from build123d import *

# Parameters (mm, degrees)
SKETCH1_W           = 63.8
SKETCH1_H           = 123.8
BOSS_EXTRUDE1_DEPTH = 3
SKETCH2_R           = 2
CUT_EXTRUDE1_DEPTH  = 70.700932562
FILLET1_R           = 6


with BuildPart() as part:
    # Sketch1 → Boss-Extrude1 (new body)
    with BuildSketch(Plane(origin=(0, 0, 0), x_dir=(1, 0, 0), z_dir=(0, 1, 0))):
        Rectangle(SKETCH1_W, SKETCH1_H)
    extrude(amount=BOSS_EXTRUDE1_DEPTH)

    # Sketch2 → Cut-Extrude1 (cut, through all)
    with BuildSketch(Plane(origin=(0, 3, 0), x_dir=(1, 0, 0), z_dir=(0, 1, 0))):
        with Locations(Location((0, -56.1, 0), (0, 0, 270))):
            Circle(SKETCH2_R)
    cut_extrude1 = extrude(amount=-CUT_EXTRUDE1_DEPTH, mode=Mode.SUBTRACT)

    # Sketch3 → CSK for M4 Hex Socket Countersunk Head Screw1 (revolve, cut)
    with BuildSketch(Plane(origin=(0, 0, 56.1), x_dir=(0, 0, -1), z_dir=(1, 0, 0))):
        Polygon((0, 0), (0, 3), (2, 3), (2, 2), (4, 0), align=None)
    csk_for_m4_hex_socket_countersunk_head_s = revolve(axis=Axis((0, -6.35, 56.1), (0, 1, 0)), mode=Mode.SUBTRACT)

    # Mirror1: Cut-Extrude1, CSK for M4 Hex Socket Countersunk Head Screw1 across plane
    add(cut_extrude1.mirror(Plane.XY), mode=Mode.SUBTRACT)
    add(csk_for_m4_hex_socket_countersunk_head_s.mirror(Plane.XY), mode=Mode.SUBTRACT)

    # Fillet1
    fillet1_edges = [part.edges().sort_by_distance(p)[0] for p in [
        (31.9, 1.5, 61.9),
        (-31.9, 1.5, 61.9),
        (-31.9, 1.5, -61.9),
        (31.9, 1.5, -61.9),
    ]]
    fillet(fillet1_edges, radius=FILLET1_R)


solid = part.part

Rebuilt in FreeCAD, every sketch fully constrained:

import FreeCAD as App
import Part
import Sketcher
from FreeCAD import Vector
Q = App.Units.Quantity


def edges_at(feature, points):
    """Names of the edges that pass closest to the given points."""
    edges = feature.Shape.Edges
    near = lambda p: min(range(len(edges)), key=lambda i: edges[i].distToShape(Part.Vertex(*p))[0])
    return sorted({f"Edge{near(p) + 1}" for p in points})

doc = App.newDocument("Part")
body = doc.addObject("PartDesign::Body", "Body")

# Sketch on XZ plane
sketch1 = body.newObject("Sketcher::SketchObject", "Sketch")
sketch1.AttachmentSupport = (doc.getObject("XZ_Plane"), [""])
sketch1.MapMode = "FlatFace"
sketch1.addGeometry(Part.LineSegment(Vector(-32, -62, 0), Vector(-32, 62, 0)), False)
sketch1.addGeometry(Part.LineSegment(Vector(-32, 62, 0), Vector(32, 62, 0)), False)
sketch1.addGeometry(Part.LineSegment(Vector(32, 62, 0), Vector(32, -62, 0)), False)
sketch1.addGeometry(Part.LineSegment(Vector(32, -62, 0), Vector(-32, -62, 0)), False)
sketch1.addConstraint(Sketcher.Constraint("Coincident", 0, 2, 1, 1))
sketch1.addConstraint(Sketcher.Constraint("Coincident", 1, 2, 2, 1))
sketch1.addConstraint(Sketcher.Constraint("Coincident", 2, 2, 3, 1))
sketch1.addConstraint(Sketcher.Constraint("Coincident", 3, 2, 0, 1))
sketch1.addConstraint(Sketcher.Constraint("Vertical", 0))
sketch1.addConstraint(Sketcher.Constraint("Horizontal", 1))
sketch1.addConstraint(Sketcher.Constraint("Vertical", 2))
sketch1.addConstraint(Sketcher.Constraint("Horizontal", 3))
sketch1.addConstraint(Sketcher.Constraint("Symmetric", 0, 2, 2, 2, -1, 1))
sketch1.addConstraint(Sketcher.Constraint("DistanceX", 1, 1, 1, 2, Q("63.8 mm")))
sketch1.addConstraint(Sketcher.Constraint("DistanceY", 0, 1, 0, 2, Q("123.8 mm")))
pad1 = body.newObject("PartDesign::Pad", "Pad")
pad1.Profile = sketch1
pad1.Length = 3
pad1.Reversed = True

# Sketch on XZ plane
sketch2 = body.newObject("Sketcher::SketchObject", "Sketch001")
sketch2.AttachmentSupport = (doc.getObject("XZ_Plane"), [""])
sketch2.MapMode = "FlatFace"
sketch2.AttachmentOffset = App.Placement(Vector(0, 0, -3), App.Rotation())
sketch2.addGeometry(Part.Circle(Vector(0, 56.1, 0), Vector(0, 0, 1), 2), False)
sketch2.addConstraint(Sketcher.Constraint("PointOnObject", 0, 3, -2))
sketch2.addConstraint(Sketcher.Constraint("Diameter", 0, Q("4 mm")))
sketch2.addConstraint(Sketcher.Constraint("DistanceY", -1, 1, 0, 3, Q("56.1 mm")))
pocket1 = body.newObject("PartDesign::Pocket", "Pocket")
pocket1.Profile = sketch2
pocket1.Type = "ThroughAll"
pocket1.Reversed = True

# Sketch on YZ plane
sketch3 = body.newObject("Sketcher::SketchObject", "Sketch002")
sketch3.AttachmentSupport = (doc.getObject("YZ_Plane"), [""])
sketch3.MapMode = "FlatFace"
sketch3.addGeometry(Part.LineSegment(Vector(3, 56.1, 0), Vector(0, 56.1, 0)), False)
sketch3.addGeometry(Part.LineSegment(Vector(0, 56.1, 0), Vector(0, 52.1, 0)), False)
sketch3.addGeometry(Part.LineSegment(Vector(0, 52.1, 0), Vector(2, 54.1, 0)), False)
sketch3.addGeometry(Part.LineSegment(Vector(2, 54.1, 0), Vector(3, 54.1, 0)), False)
sketch3.addGeometry(Part.LineSegment(Vector(3, 54.1, 0), Vector(3, 56.1, 0)), False)
sketch3.addGeometry(Part.LineSegment(Vector(0, 56.1, 0), Vector(3, 56.1, 0)), True)  # axis
sketch3.addConstraint(Sketcher.Constraint("Coincident", 0, 2, 1, 1))
sketch3.addConstraint(Sketcher.Constraint("Coincident", 1, 2, 2, 1))
sketch3.addConstraint(Sketcher.Constraint("Coincident", 2, 2, 3, 1))
sketch3.addConstraint(Sketcher.Constraint("Coincident", 3, 2, 4, 1))
sketch3.addConstraint(Sketcher.Constraint("Coincident", 4, 2, 0, 1))
sketch3.addConstraint(Sketcher.Constraint("Horizontal", 0))
sketch3.addConstraint(Sketcher.Constraint("Vertical", 1))
sketch3.addConstraint(Sketcher.Constraint("Horizontal", 3))
sketch3.addConstraint(Sketcher.Constraint("Vertical", 4))
sketch3.addConstraint(Sketcher.Constraint("Horizontal", 5))
sketch3.addConstraint(Sketcher.Constraint("Coincident", 5, 1, 0, 2))
sketch3.addConstraint(Sketcher.Constraint("PointOnObject", 0, 2, -2))
sketch3.addConstraint(Sketcher.Constraint("Vertical", 3, 2, 5, 2))
sketch3.addConstraint(Sketcher.Constraint("DistanceX", 0, 2, 0, 1, Q("3 mm")))
sketch3.addConstraint(Sketcher.Constraint("DistanceX", 3, 1, 3, 2, Q("1 mm")))
sketch3.addConstraint(Sketcher.Constraint("DistanceY", 1, 2, 1, 1, Q("4 mm")))
sketch3.addConstraint(Sketcher.Constraint("DistanceY", 4, 1, 4, 2, Q("2 mm")))
sketch3.addConstraint(Sketcher.Constraint("DistanceY", -1, 1, 0, 2, Q("56.1 mm")))
groove = body.newObject("PartDesign::Groove", "Groove")
groove.Profile = sketch3
groove.ReferenceAxis = (sketch3, ["Axis0"])
groove.Angle = 360
doc.recompute()

mirrored = body.newObject("PartDesign::Mirrored", "Mirrored")
mirrored.Originals = [pocket1, groove]
mirrored.MirrorPlane = (doc.getObject("XY_Plane"), [""])
body.Tip = mirrored
doc.recompute()

fillet = body.newObject("PartDesign::Fillet", "Fillet")
fillet.Base = (mirrored, edges_at(mirrored, [
    (31.9, 1.5, 61.9),
    (-31.9, 1.5, 61.9),
    (-31.9, 1.5, -61.9),
    (31.9, 1.5, -61.9),
]))
fillet.Radius = 6

doc.recompute()
